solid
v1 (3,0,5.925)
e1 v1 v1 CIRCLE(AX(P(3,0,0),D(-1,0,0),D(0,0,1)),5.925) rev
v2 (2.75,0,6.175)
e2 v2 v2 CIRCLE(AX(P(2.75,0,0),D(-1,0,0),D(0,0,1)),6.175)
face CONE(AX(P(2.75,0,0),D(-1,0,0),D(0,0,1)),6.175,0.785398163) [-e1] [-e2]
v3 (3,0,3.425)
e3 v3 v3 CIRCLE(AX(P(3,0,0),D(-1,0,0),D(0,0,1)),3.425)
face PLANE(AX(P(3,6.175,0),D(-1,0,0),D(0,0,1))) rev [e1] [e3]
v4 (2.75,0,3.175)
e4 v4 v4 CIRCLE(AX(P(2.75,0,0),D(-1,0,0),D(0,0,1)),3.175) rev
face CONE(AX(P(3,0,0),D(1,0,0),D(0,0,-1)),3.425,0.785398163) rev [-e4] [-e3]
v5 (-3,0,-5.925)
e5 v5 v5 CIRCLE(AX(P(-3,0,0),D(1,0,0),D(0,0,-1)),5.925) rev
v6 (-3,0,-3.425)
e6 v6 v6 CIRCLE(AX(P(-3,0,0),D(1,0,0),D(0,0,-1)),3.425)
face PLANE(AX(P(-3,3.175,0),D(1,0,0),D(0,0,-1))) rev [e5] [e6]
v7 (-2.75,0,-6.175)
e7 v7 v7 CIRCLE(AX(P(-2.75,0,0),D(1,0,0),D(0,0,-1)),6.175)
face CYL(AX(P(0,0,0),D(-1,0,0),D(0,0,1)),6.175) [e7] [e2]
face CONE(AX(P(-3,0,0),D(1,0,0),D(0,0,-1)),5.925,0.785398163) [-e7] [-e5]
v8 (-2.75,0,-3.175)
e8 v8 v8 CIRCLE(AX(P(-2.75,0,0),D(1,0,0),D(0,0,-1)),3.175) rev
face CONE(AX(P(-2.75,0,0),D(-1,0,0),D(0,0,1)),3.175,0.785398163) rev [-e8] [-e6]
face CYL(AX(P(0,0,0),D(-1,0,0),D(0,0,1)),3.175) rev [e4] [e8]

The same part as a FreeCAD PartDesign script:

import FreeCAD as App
import Part
import Sketcher
from FreeCAD import Vector


def edges_at(feature, points):
    """Names of the edges that pass closest to the given points."""
    edges = feature.Shape.Edges
    near = lambda p: min(range(len(edges)), key=lambda i: edges[i].distToShape(Part.Vertex(*p))[0])
    return sorted({f"Edge{near(p) + 1}" for p in points})

doc = App.newDocument("Part")
params = doc.addObject("Spreadsheet::Sheet", "Params")
for row, (alias, value) in enumerate([
    ("sketch1_width", "6 mm"),
    ("sketch1_height", "3 mm"),
    ("revolution_angle", "360 deg"),
    ("chamfer_size", "0.25 mm"),
], start=1):
    params.set(f"A{row}", alias)
    params.set(f"B{row}", "=" + value)
    params.setAlias(f"B{row}", alias)

body = doc.addObject("PartDesign::Body", "Body")

sketch1 = body.newObject("Sketcher::SketchObject", "Sketch")
sketch1.AttachmentSupport = (doc.getObject("XY_Plane"), [""])
sketch1.MapMode = "FlatFace"
sketch1.addGeometry([
    Part.LineSegment(Vector(-3, 6.2, 0), Vector(-3, 3.2, 0)),
    Part.LineSegment(Vector(-3, 3.2, 0), Vector(3, 3.2, 0)),
    Part.LineSegment(Vector(3, 3.2, 0), Vector(3, 6.2, 0)),
    Part.LineSegment(Vector(3, 6.2, 0), Vector(-3, 6.2, 0)),
], False)
sketch1.addConstraint([
    Sketcher.Constraint("Coincident", 0, 2, 1, 1),
    Sketcher.Constraint("Coincident", 1, 2, 2, 1),
    Sketcher.Constraint("Coincident", 2, 2, 3, 1),
    Sketcher.Constraint("Coincident", 3, 2, 0, 1),
    Sketcher.Constraint("Vertical", 0),
    Sketcher.Constraint("Horizontal", 1),
    Sketcher.Constraint("Vertical", 2),
    Sketcher.Constraint("Horizontal", 3),
    Sketcher.Constraint("DistanceX", 1, 1, 1, 2, 6.0),
    Sketcher.Constraint("DistanceY", 0, 2, 0, 1, 3.0),
    Sketcher.Constraint("DistanceX", 0, 2, -1, 1, 3.0),
    Sketcher.Constraint("DistanceY", -1, 1, 0, 2, 3.175),
])
sketch1.setExpression("Constraints[8]", "Params.sketch1_width")
sketch1.setExpression("Constraints[9]", "Params.sketch1_height")
revolution = body.newObject("PartDesign::Revolution", "Revolution")
revolution.Profile = sketch1
revolution.ReferenceAxis = (sketch1, ["H_Axis"])
revolution.setExpression("Angle", "Params.revolution_angle")
doc.recompute()

chamfer = body.newObject("PartDesign::Chamfer", "Chamfer")
chamfer.Base = (revolution, edges_at(revolution, [
    (-3, 0, -3.175),
    (3, 0, -3.175),
    (3, 0, -6.175),
    (-3, 0, -6.175),
]))
chamfer.setExpression("Size", "Params.chamfer_size")

doc.recompute()
